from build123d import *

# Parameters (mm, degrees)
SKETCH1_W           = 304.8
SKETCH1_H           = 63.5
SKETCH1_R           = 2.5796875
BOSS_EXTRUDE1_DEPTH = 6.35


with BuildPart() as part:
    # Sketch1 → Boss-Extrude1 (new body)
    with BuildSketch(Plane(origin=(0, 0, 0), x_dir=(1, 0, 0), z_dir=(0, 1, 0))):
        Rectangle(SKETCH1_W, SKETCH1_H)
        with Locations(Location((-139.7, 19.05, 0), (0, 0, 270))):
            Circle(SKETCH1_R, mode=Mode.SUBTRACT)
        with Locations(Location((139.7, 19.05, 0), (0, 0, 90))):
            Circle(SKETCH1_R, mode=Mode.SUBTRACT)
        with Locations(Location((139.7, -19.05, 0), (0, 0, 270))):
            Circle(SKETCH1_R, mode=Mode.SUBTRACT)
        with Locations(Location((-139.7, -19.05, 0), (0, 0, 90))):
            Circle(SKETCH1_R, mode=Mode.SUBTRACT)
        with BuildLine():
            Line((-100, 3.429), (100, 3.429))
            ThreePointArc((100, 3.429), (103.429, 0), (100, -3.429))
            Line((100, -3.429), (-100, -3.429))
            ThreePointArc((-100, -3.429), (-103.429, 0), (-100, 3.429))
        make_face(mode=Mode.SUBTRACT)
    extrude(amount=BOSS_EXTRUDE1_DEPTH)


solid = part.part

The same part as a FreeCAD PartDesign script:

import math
import FreeCAD as App
import Part
import Sketcher
from FreeCAD import Vector
Q = App.Units.Quantity

doc = App.newDocument("Part")
body = doc.addObject("PartDesign::Body", "Body")

sketch1 = body.newObject("Sketcher::SketchObject", "Sketch")
sketch1.AttachmentSupport = (doc.getObject("XZ_Plane"), [""])
sketch1.MapMode = "FlatFace"
sketch1.addGeometry([
    Part.LineSegment(Vector(-152.4, -31.8, 0), Vector(-152.4, 31.8, 0)),
    Part.LineSegment(Vector(-152.4, 31.8, 0), Vector(152.4, 31.8, 0)),
    Part.LineSegment(Vector(152.4, 31.8, 0), Vector(152.4, -31.8, 0)),
    Part.LineSegment(Vector(152.4, -31.8, 0), Vector(-152.4, -31.8, 0)),
    Part.Circle(Vector(-139.7, 19.1, 0), Vector(0, 0, 1), 2.6),
    Part.Circle(Vector(139.7, 19.1, 0), Vector(0, 0, 1), 2.6),
    Part.Circle(Vector(-139.7, -19.1, 0), Vector(0, 0, 1), 2.6),
    Part.ArcOfCircle(Part.Circle(Vector(-100, 0, 0), Vector(0, 0, 1), 3.4), math.radians(90), math.radians(270)),
    Part.LineSegment(Vector(-100, -3.4, 0), Vector(100, -3.4, 0)),
    Part.ArcOfCircle(Part.Circle(Vector(100, 0, 0), Vector(0, 0, 1), 3.4), math.radians(-90), math.radians(90)),
    Part.LineSegment(Vector(100, 3.4, 0), Vector(-100, 3.4, 0)),
    Part.Circle(Vector(139.7, -19.1, 0), Vector(0, 0, 1), 2.6),
], False)
sketch1.addConstraint([
    Sketcher.Constraint("Coincident", 0, 2, 1, 1),
    Sketcher.Constraint("Coincident", 1, 2, 2, 1),
    Sketcher.Constraint("Coincident", 2, 2, 3, 1),
    Sketcher.Constraint("Coincident", 3, 2, 0, 1),
    Sketcher.Constraint("Tangent", 7, 2, 8, 1),
    Sketcher.Constraint("Tangent", 8, 2, 9, 1),
    Sketcher.Constraint("Tangent", 9, 2, 10, 1),
    Sketcher.Constraint("Tangent", 10, 2, 7, 1),
    Sketcher.Constraint("Vertical", 0),
    Sketcher.Constraint("Horizontal", 1),
    Sketcher.Constraint("Vertical", 2),
    Sketcher.Constraint("Horizontal", 3),
    Sketcher.Constraint("Horizontal", 8),
    Sketcher.Constraint("Horizontal", 10),
    Sketcher.Constraint("Equal", 4, 5),
    Sketcher.Constraint("Equal", 5, 6),
    Sketcher.Constraint("Equal", 6, 11),
    Sketcher.Constraint("Symmetric", 5, 3, 6, 3, -1, 1),
    Sketcher.Constraint("Symmetric", 7, 3, 9, 3, -1, 1),
    Sketcher.Constraint("Symmetric", 4, 3, 11, 3, -1, 1),
    Sketcher.Constraint("Symmetric", 0, 2, 2, 2, -1, 1),
    Sketcher.Constraint("Symmetric", 4, 3, 5, 3, -2),
    Sketcher.Constraint("DistanceX", 1, 1, 1, 2, Q("12 in")),
    Sketcher.Constraint("Diameter", 4, Q("0.203125 in")),
    Sketcher.Constraint("DistanceY", 0, 1, 0, 2, Q("2.5 in")),
    Sketcher.Constraint("Radius", 7, Q("0.135 in")),
    Sketcher.Constraint("DistanceX", 4, 3, 5, 3, Q("11 in")),
    Sketcher.Constraint("DistanceY", 6, 3, 0, 2, Q("2 in")),
    Sketcher.Constraint("DistanceX", 8, 1, 8, 2, 200.0),
])
pad1 = body.newObject("PartDesign::Pad", "Pad")
pad1.Profile = sketch1
pad1.Length = Q("0.25 in")
pad1.Reversed = True

doc.recompute()
